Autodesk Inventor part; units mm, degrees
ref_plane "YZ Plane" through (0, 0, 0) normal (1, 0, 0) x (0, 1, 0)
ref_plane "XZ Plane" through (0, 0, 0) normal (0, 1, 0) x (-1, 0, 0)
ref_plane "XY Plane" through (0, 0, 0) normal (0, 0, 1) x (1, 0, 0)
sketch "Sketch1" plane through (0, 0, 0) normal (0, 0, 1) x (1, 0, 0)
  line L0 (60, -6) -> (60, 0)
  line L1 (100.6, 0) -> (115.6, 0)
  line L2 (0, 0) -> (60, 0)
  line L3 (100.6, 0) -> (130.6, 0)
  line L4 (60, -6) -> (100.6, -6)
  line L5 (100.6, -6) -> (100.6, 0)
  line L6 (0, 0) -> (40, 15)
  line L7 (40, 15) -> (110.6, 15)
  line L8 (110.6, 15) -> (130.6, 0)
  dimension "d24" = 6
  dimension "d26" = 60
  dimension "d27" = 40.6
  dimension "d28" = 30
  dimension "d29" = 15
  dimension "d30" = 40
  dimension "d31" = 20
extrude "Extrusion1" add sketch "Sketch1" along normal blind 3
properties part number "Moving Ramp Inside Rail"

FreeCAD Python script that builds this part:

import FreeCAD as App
import Part
import Sketcher
from FreeCAD import Vector
Q = App.Units.Quantity

doc = App.newDocument("Part")
body = doc.addObject("PartDesign::Body", "Body")

# Sketch on XY plane
sketch1 = body.newObject("Sketcher::SketchObject", "Sketch")
sketch1.AttachmentSupport = (doc.getObject("XY_Plane"), [""])
sketch1.MapMode = "FlatFace"
sketch1.addGeometry(Part.LineSegment(Vector(60, 0, 0), Vector(60, -6, 0)), False)
sketch1.addGeometry(Part.LineSegment(Vector(60, -6, 0), Vector(101, -6, 0)), False)
sketch1.addGeometry(Part.LineSegment(Vector(101, -6, 0), Vector(101, 0, 0)), False)
sketch1.addGeometry(Part.LineSegment(Vector(101, 0, 0), Vector(131, 0, 0)), False)
sketch1.addGeometry(Part.LineSegment(Vector(131, 0, 0), Vector(111, 15, 0)), False)
sketch1.addGeometry(Part.LineSegment(Vector(111, 15, 0), Vector(40, 15, 0)), False)
sketch1.addGeometry(Part.LineSegment(Vector(40, 15, 0), Vector(0, 0, 0)), False)
sketch1.addGeometry(Part.LineSegment(Vector(0, 0, 0), Vector(60, 0, 0)), False)
sketch1.addConstraint(Sketcher.Constraint("Coincident", 0, 2, 1, 1))
sketch1.addConstraint(Sketcher.Constraint("Coincident", 1, 2, 2, 1))
sketch1.addConstraint(Sketcher.Constraint("Coincident", 2, 2, 3, 1))
sketch1.addConstraint(Sketcher.Constraint("Coincident", 3, 2, 4, 1))
sketch1.addConstraint(Sketcher.Constraint("Coincident", 4, 2, 5, 1))
sketch1.addConstraint(Sketcher.Constraint("Coincident", 5, 2, 6, 1))
sketch1.addConstraint(Sketcher.Constraint("Coincident", 6, 2, 7, 1))
sketch1.addConstraint(Sketcher.Constraint("Coincident", 7, 2, 0, 1))
sketch1.addConstraint(Sketcher.Constraint("Vertical", 0))
sketch1.addConstraint(Sketcher.Constraint("Horizontal", 1))
sketch1.addConstraint(Sketcher.Constraint("Vertical", 2))
sketch1.addConstraint(Sketcher.Constraint("Horizontal", 3))
sketch1.addConstraint(Sketcher.Constraint("Horizontal", 5))
sketch1.addConstraint(Sketcher.Constraint("Horizontal", 7))
sketch1.addConstraint(Sketcher.Constraint("Coincident", 6, 2, -1, 1))
sketch1.addConstraint(Sketcher.Constraint("PointOnObject", 2, 2, -1))
sketch1.addConstraint(Sketcher.Constraint("DistanceX", 3, 1, 3, 2, Q("30 mm")))
sketch1.addConstraint(Sketcher.Constraint("DistanceX", 7, 1, 7, 2, Q("60 mm")))
sketch1.addConstraint(Sketcher.Constraint("DistanceY", 0, 2, 0, 1, Q("6 mm")))
sketch1.addConstraint(Sketcher.Constraint("DistanceX", 1, 1, 1, 2, Q("40.6 mm")))
sketch1.addConstraint(Sketcher.Constraint("DistanceY", -1, 1, 4, 2, Q("15 mm")))
sketch1.addConstraint(Sketcher.Constraint("DistanceX", -1, 1, 5, 2, Q("40 mm")))
sketch1.addConstraint(Sketcher.Constraint("DistanceX", 4, 2, 3, 2, Q("20 mm")))
pad1 = body.newObject("PartDesign::Pad", "Pad")
pad1.Profile = sketch1
pad1.Length = 3

doc.recompute()
